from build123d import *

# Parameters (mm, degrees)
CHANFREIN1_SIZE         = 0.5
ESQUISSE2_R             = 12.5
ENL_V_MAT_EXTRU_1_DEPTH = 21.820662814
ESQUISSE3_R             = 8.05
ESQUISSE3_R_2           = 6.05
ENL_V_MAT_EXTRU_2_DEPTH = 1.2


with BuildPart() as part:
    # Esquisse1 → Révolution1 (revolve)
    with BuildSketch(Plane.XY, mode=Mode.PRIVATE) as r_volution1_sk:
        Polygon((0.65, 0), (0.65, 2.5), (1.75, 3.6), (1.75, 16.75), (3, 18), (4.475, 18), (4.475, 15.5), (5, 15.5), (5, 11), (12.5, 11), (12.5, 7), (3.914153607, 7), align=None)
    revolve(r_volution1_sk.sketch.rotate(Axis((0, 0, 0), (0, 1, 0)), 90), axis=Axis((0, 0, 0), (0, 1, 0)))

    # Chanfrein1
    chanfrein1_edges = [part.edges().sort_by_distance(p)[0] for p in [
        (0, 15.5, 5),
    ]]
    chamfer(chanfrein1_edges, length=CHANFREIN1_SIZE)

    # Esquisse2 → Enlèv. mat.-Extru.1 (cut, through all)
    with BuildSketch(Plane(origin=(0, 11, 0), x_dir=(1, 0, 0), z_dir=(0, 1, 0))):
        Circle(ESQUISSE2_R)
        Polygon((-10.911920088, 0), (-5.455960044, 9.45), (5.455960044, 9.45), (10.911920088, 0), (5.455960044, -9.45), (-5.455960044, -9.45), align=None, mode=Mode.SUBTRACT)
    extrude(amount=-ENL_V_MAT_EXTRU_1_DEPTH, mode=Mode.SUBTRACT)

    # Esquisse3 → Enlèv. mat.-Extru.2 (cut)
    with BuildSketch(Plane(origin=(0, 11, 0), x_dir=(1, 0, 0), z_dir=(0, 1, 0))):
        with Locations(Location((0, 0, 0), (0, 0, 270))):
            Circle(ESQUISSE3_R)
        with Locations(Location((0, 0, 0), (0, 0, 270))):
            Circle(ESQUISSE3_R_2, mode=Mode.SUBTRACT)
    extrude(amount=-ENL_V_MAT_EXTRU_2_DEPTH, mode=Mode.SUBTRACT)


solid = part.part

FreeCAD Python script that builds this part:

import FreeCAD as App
import Part
import Sketcher
from FreeCAD import Vector
Q = App.Units.Quantity


def edges_at(feature, points):
    """Names of the edges that pass closest to the given points."""
    edges = feature.Shape.Edges
    near = lambda p: min(range(len(edges)), key=lambda i: edges[i].distToShape(Part.Vertex(*p))[0])
    return sorted({f"Edge{near(p) + 1}" for p in points})

doc = App.newDocument("Part")
params = doc.addObject("Spreadsheet::Sheet", "Params")
for row, (alias, value) in enumerate([
    ("sketch1_height", "4 mm"),
    ("sketch1_width", "7.5 mm"),
    ("sketch1_height2", "2.5 mm"),
    ("sketch1_height3", "4.5 mm"),
    ("sketch1_height4", "13.15 mm"),
    ("revolution_angle", "360 deg"),
    ("chamfer_size", "0.5 mm"),
    ("sketch2_diameter", "25 mm"),
    ("sketch3_diameter", "16.1 mm"),
    ("sketch3_diameter2", "12.1 mm"),
    ("pocket2_length", "1.2 mm"),
], start=1):
    params.set(f"A{row}", alias)
    params.set(f"B{row}", "=" + value)
    params.setAlias(f"B{row}", alias)

body = doc.addObject("PartDesign::Body", "Body")

# Sketch on XY plane
sketch1 = body.newObject("Sketcher::SketchObject", "Sketch")
sketch1.AttachmentSupport = (doc.getObject("XY_Plane"), [""])
sketch1.MapMode = "FlatFace"
sketch1.addGeometry(Part.LineSegment(Vector(0.65, 2.5, 0), Vector(0.65, 0, 0)), False)
sketch1.addGeometry(Part.LineSegment(Vector(0.65, 0, 0), Vector(3.914154, 7, 0)), False)
sketch1.addGeometry(Part.LineSegment(Vector(3.914154, 7, 0), Vector(12.5, 7, 0)), False)
sketch1.addGeometry(Part.LineSegment(Vector(12.5, 7, 0), Vector(12.5, 11, 0)), False)
sketch1.addGeometry(Part.LineSegment(Vector(12.5, 11, 0), Vector(5, 11, 0)), False)
sketch1.addGeometry(Part.LineSegment(Vector(5, 11, 0), Vector(5, 15.5, 0)), False)
sketch1.addGeometry(Part.LineSegment(Vector(5, 15.5, 0), Vector(4.475, 15.5, 0)), False)
sketch1.addGeometry(Part.LineSegment(Vector(4.475, 15.5, 0), Vector(4.475, 18, 0)), False)
sketch1.addGeometry(Part.LineSegment(Vector(4.475, 18, 0), Vector(3, 18, 0)), False)
sketch1.addGeometry(Part.LineSegment(Vector(3, 18, 0), Vector(1.75, 16.75, 0)), False)
sketch1.addGeometry(Part.LineSegment(Vector(1.75, 16.75, 0), Vector(1.75, 3.6, 0)), False)
sketch1.addGeometry(Part.LineSegment(Vector(1.75, 3.6, 0), Vector(0.65, 2.5, 0)), False)
sketch1.addConstraint(Sketcher.Constraint("Coincident", 0, 2, 1, 1))
sketch1.addConstraint(Sketcher.Constraint("Coincident", 1, 2, 2, 1))
sketch1.addConstraint(Sketcher.Constraint("Coincident", 2, 2, 3, 1))
sketch1.addConstraint(Sketcher.Constraint("Coincident", 3, 2, 4, 1))
sketch1.addConstraint(Sketcher.Constraint("Coincident", 4, 2, 5, 1))
sketch1.addConstraint(Sketcher.Constraint("Coincident", 5, 2, 6, 1))
sketch1.addConstraint(Sketcher.Constraint("Coincident", 6, 2, 7, 1))
sketch1.addConstraint(Sketcher.Constraint("Coincident", 7, 2, 8, 1))
sketch1.addConstraint(Sketcher.Constraint("Coincident", 8, 2, 9, 1))
sketch1.addConstraint(Sketcher.Constraint("Coincident", 9, 2, 10, 1))
sketch1.addConstraint(Sketcher.Constraint("Coincident", 10, 2, 11, 1))
sketch1.addConstraint(Sketcher.Constraint("Coincident", 11, 2, 0, 1))
sketch1.addConstraint(Sketcher.Constraint("Vertical", 0))
sketch1.addConstraint(Sketcher.Constraint("Horizontal", 2))
sketch1.addConstraint(Sketcher.Constraint("Vertical", 3))
sketch1.addConstraint(Sketcher.Constraint("Horizontal", 4))
sketch1.addConstraint(Sketcher.Constraint("Vertical", 5))
sketch1.addConstraint(Sketcher.Constraint("Horizontal", 6))
sketch1.addConstraint(Sketcher.Constraint("Vertical", 7))
sketch1.addConstraint(Sketcher.Constraint("Horizontal", 8))
sketch1.addConstraint(Sketcher.Constraint("Vertical", 10))
sketch1.addConstraint(Sketcher.Constraint("PointOnObject", 0, 2, -1))
sketch1.addConstraint(Sketcher.Constraint("Parallel", 9, 11))
sketch1.addConstraint(Sketcher.Constraint("Equal", 0, 7))
sketch1.addConstraint(Sketcher.Constraint("DistanceY", 3, 1, 3, 2, Q("4 mm")))
sketch1.addConstraint(Sketcher.Constraint("Angle", 1, Q("65 deg")))
sketch1.addConstraint(Sketcher.Constraint("Angle", 9, Q("-135 deg")))
sketch1.addConstraint(Sketcher.Constraint("DistanceX", 4, 2, 4, 1, Q("7.5 mm")))
sketch1.addConstraint(Sketcher.Constraint("DistanceY", 0, 2, 0, 1, Q("2.5 mm")))
sketch1.addConstraint(Sketcher.Constraint("DistanceY", 5, 1, 5, 2, Q("4.5 mm")))
sketch1.addConstraint(Sketcher.Constraint("DistanceY", -1, 1, 1, 2, Q("7 mm")))
sketch1.addConstraint(Sketcher.Constraint("DistanceX", -1, 1, 4, 2, Q("5 mm")))
sketch1.addConstraint(Sketcher.Constraint("DistanceX", -1, 1, 8, 2, Q("3 mm")))
sketch1.addConstraint(Sketcher.Constraint("DistanceY", 10, 2, 10, 1, Q("13.15 mm")))
sketch1.addConstraint(Sketcher.Constraint("DistanceY", -1, 1, 10, 2, Q("3.6 mm")))
sketch1.addConstraint(Sketcher.Constraint("DistanceX", 6, 2, 6, 1, Q("0.525 mm")))
sketch1.setExpression("Constraints[24]", "Params.sketch1_height")
sketch1.setExpression("Constraints[27]", "Params.sketch1_width")
sketch1.setExpression("Constraints[28]", "Params.sketch1_height2")
sketch1.setExpression("Constraints[29]", "Params.sketch1_height3")
sketch1.setExpression("Constraints[33]", "Params.sketch1_height4")
revolution = body.newObject("PartDesign::Revolution", "Revolution")
revolution.Profile = sketch1
revolution.ReferenceAxis = (sketch1, ["V_Axis"])
revolution.setExpression("Angle", "Params.revolution_angle")
doc.recompute()

chamfer = body.newObject("PartDesign::Chamfer", "Chamfer")
chamfer.Base = (revolution, edges_at(revolution, [(0, 15.5, 5)]))
chamfer.setExpression("Size", "Params.chamfer_size")

# Sketch on XZ plane
sketch2 = body.newObject("Sketcher::SketchObject", "Sketch001")
sketch2.AttachmentSupport = (doc.getObject("XZ_Plane"), [""])
sketch2.MapMode = "FlatFace"
sketch2.AttachmentOffset = App.Placement(Vector(0, 0, -11), App.Rotation())
sketch2.addGeometry(Part.Circle(Vector(0, 0, 0), Vector(0, 0, 1), 12.5), False)
sketch2.addGeometry(Part.LineSegment(Vector(-5.45596, 9.45, 0), Vector(-10.91192, 0, 0)), False)
sketch2.addGeometry(Part.LineSegment(Vector(-10.91192, 0, 0), Vector(-5.45596, -9.45, 0)), False)
sketch2.addGeometry(Part.LineSegment(Vector(-5.45596, -9.45, 0), Vector(5.45596, -9.45, 0)), False)
sketch2.addGeometry(Part.LineSegment(Vector(5.45596, -9.45, 0), Vector(10.91192, 0, 0)), False)
sketch2.addGeometry(Part.LineSegment(Vector(10.91192, 0, 0), Vector(5.45596, 9.45, 0)), False)
sketch2.addGeometry(Part.LineSegment(Vector(5.45596, 9.45, 0), Vector(-5.45596, 9.45, 0)), False)
sketch2.addConstraint(Sketcher.Constraint("Coincident", 1, 2, 2, 1))
sketch2.addConstraint(Sketcher.Constraint("Coincident", 2, 2, 3, 1))
sketch2.addConstraint(Sketcher.Constraint("Coincident", 3, 2, 4, 1))
sketch2.addConstraint(Sketcher.Constraint("Coincident", 4, 2, 5, 1))
sketch2.addConstraint(Sketcher.Constraint("Coincident", 5, 2, 6, 1))
sketch2.addConstraint(Sketcher.Constraint("Coincident", 6, 2, 1, 1))
sketch2.addConstraint(Sketcher.Constraint("Horizontal", 3))
sketch2.addConstraint(Sketcher.Constraint("Horizontal", 6))
sketch2.addConstraint(Sketcher.Constraint("Coincident", 0, 3, -1, 1))
sketch2.addConstraint(Sketcher.Constraint("Symmetric", 1, 2, 4, 2, -1, 1))
sketch2.addConstraint(Sketcher.Constraint("Symmetric", 2, 2, 5, 2, -1, 1))
sketch2.addConstraint(Sketcher.Constraint("PointOnObject", 1, 2, -1))
sketch2.addConstraint(Sketcher.Constraint("Parallel", 1, 4))
sketch2.addConstraint(Sketcher.Constraint("Vertical", 3, 2, 5, 2))
sketch2.addConstraint(Sketcher.Constraint("Diameter", 0, Q("25 mm")))
sketch2.addConstraint(Sketcher.Constraint("Angle", 1, Q("-120 deg")))
sketch2.addConstraint(Sketcher.Constraint("DistanceY", 3, 2, 5, 2, Q("18.9 mm")))
sketch2.addConstraint(Sketcher.Constraint("DistanceX", 3, 1, 3, 2, Q("10.91192 mm")))
sketch2.setExpression("Constraints[14]", "Params.sketch2_diameter")
pocket1 = body.newObject("PartDesign::Pocket", "Pocket")
pocket1.Profile = sketch2
pocket1.Type = "ThroughAll"
pocket1.Reversed = True

# Sketch on XZ plane
sketch3 = body.newObject("Sketcher::SketchObject", "Sketch002")
sketch3.AttachmentSupport = (doc.getObject("XZ_Plane"), [""])
sketch3.MapMode = "FlatFace"
sketch3.AttachmentOffset = App.Placement(Vector(0, 0, -11), App.Rotation())
sketch3.addGeometry(Part.Circle(Vector(0, 0, 0), Vector(0, 0, 1), 8.05), False)
sketch3.addGeometry(Part.Circle(Vector(0, 0, 0), Vector(0, 0, 1), 6.05), False)
sketch3.addConstraint(Sketcher.Constraint("Coincident", 0, 3, -1, 1))
sketch3.addConstraint(Sketcher.Constraint("Coincident", 1, 3, -1, 1))
sketch3.addConstraint(Sketcher.Constraint("Diameter", 0, Q("16.1 mm")))
sketch3.addConstraint(Sketcher.Constraint("Diameter", 1, Q("12.1 mm")))
sketch3.setExpression("Constraints[2]", "Params.sketch3_diameter")
sketch3.setExpression("Constraints[3]", "Params.sketch3_diameter2")
pocket2 = body.newObject("PartDesign::Pocket", "Pocket001")
pocket2.Profile = sketch3
pocket2.setExpression("Length", "Params.pocket2_length")
pocket2.Reversed = True

doc.recompute()
